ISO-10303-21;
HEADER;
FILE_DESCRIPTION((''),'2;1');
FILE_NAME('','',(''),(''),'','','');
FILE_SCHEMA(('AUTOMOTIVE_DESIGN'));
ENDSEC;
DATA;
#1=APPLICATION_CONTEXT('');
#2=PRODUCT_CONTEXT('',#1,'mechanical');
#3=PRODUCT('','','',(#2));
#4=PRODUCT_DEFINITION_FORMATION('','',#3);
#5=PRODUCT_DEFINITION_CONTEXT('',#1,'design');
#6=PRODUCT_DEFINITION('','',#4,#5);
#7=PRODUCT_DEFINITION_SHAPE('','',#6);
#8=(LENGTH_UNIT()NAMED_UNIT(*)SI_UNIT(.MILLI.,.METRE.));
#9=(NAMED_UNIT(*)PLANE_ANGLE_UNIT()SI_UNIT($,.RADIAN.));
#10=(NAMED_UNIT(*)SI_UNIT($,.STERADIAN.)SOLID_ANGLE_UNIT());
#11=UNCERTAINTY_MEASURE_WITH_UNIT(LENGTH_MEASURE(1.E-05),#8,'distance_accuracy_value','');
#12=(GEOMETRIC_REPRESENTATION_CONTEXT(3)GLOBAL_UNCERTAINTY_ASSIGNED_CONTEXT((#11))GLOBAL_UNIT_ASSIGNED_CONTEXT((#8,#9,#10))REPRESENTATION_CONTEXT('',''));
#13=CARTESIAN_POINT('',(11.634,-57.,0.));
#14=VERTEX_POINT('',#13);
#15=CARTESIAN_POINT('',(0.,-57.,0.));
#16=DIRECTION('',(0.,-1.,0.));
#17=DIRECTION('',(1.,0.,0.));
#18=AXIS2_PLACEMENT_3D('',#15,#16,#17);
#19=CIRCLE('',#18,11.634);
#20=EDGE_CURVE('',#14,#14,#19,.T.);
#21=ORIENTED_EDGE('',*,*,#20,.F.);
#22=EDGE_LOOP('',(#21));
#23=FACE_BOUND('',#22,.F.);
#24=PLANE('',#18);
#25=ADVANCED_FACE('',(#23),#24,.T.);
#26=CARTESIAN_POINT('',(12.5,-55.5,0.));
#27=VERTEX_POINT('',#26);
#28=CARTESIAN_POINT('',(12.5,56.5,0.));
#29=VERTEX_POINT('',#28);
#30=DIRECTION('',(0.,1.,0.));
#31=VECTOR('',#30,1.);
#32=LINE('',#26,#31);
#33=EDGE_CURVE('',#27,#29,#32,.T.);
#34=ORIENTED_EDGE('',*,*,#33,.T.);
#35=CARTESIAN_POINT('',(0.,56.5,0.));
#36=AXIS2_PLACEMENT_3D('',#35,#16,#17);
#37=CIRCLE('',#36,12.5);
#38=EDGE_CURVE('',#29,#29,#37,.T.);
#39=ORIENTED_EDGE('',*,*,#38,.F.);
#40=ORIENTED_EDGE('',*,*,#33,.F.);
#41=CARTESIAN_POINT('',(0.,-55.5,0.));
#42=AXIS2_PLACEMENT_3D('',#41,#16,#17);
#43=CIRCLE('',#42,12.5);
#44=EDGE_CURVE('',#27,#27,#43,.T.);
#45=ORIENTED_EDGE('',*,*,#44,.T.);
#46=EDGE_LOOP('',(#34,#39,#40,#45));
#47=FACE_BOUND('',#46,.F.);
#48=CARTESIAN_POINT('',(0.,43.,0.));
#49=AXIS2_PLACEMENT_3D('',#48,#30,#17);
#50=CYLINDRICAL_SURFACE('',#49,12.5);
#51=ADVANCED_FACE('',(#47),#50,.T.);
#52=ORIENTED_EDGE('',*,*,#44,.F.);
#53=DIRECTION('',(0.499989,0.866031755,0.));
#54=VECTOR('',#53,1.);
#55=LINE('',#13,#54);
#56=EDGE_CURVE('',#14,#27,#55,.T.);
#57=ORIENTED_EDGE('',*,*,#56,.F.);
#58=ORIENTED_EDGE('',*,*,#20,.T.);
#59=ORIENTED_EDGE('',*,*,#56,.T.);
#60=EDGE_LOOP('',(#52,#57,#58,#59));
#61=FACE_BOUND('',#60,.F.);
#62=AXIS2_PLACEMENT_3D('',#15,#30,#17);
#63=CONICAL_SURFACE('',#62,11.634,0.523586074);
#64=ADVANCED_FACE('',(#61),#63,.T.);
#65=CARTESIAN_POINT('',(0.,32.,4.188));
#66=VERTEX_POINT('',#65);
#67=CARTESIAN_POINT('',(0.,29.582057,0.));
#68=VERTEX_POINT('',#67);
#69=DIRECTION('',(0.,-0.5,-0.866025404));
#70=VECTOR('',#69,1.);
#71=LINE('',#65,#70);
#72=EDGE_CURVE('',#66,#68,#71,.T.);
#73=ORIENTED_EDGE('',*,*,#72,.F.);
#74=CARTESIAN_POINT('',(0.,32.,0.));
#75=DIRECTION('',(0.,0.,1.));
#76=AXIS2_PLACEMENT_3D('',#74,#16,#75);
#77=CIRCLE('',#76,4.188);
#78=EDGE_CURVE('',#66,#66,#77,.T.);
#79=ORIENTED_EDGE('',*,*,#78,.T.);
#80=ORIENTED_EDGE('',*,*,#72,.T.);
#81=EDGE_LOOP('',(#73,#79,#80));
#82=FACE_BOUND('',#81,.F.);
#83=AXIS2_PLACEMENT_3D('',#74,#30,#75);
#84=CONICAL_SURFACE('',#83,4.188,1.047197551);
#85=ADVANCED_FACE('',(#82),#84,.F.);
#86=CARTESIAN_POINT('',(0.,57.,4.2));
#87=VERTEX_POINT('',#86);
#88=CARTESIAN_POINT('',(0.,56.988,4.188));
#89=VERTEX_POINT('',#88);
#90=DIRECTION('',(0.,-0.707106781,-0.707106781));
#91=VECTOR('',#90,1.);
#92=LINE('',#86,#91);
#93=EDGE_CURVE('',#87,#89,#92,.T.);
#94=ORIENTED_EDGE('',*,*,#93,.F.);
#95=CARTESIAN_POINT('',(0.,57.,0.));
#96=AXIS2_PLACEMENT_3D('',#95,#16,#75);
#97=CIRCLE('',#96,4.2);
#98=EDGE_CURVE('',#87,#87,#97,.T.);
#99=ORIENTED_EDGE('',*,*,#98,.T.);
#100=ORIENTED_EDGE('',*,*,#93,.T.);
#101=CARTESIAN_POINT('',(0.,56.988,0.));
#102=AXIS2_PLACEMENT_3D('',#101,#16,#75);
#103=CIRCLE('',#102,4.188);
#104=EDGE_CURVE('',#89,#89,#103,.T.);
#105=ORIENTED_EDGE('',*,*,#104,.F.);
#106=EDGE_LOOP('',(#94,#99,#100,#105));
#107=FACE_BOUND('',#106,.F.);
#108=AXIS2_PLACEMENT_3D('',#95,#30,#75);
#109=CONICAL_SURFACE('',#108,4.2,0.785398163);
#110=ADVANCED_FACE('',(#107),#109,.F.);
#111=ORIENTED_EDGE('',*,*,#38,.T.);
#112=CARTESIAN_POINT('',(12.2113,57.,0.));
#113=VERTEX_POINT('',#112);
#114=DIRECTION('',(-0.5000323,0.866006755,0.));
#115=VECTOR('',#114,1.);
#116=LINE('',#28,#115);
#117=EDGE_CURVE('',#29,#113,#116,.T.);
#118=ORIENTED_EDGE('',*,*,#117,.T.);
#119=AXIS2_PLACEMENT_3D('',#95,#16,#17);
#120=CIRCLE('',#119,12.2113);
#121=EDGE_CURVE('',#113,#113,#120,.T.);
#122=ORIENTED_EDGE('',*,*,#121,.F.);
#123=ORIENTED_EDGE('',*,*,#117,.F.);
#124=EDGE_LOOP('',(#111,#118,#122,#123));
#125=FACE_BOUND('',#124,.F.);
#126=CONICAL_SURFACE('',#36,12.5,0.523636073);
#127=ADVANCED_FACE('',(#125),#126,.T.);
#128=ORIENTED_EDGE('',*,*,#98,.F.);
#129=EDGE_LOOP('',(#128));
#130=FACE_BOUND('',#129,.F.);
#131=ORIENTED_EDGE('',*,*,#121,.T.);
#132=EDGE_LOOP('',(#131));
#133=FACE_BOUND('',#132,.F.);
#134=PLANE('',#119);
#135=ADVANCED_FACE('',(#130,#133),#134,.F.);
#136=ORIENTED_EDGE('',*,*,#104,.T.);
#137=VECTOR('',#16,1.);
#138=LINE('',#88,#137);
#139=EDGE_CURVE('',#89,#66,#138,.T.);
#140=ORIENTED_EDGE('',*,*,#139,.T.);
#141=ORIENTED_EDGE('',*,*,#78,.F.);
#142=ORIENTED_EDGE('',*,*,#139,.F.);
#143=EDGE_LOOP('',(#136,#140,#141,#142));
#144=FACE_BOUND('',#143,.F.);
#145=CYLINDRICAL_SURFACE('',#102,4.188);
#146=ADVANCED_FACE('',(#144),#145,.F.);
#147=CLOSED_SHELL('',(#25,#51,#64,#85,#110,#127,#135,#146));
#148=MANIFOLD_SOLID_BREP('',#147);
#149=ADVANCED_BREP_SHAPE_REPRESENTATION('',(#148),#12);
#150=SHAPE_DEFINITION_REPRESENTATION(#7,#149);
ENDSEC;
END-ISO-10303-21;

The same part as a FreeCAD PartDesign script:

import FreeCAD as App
import Part
import Sketcher

V = App.Vector
Q = App.Units.Quantity


def add_polygon(sketch, points):
    """Adds a closed chain of lines whose ends are joined by coincident constraints."""
    first, n = sketch.GeometryCount, len(points)
    for a, b in zip(points, points[1:] + points[:1]):
        sketch.addGeometry(Part.LineSegment(App.Vector(*a, 0), App.Vector(*b, 0)), False)
    for i in range(n):
        sketch.addConstraint(Sketcher.Constraint("Coincident", first + i, 2, first + (i + 1) % n, 1))

doc = App.newDocument("Part")
body = doc.addObject("PartDesign::Body", "Body")

# Sketch on XY plane
sketch1 = doc.addObject("Sketcher::SketchObject", "Sketch")
body.addObject(sketch1)
sketch1.AttachmentSupport = (doc.XY_Plane, [""])
sketch1.MapMode = "FlatFace"
add_polygon(sketch1, [(12.2113, 57), (0, 57), (0, -57), (11.634, -57), (12.5, -55.5), (12.5, 56.5)])  # lines 0-5
sketch1.addConstraint([
    Sketcher.Constraint("Horizontal", 0),
    Sketcher.Constraint("Vertical", 1),
    Sketcher.Constraint("Horizontal", 2),
    Sketcher.Constraint("Vertical", 4),
    Sketcher.Constraint("Symmetric", 0, 2, 1, 2, -1, 1),
    Sketcher.Constraint("DistanceY", 1, 2, 1, 1, Q("114 mm")),
    Sketcher.Constraint("DistanceY", 2, 2, 3, 2, Q("1.5 mm")),
    Sketcher.Constraint("DistanceY", 4, 2, 0, 2, Q("0.5 mm")),
    Sketcher.Constraint("Angle", 3, Q("60.0007 deg")),
    Sketcher.Constraint("DistanceX", -1, 1, 3, 2, Q("12.5 mm")),
    Sketcher.Constraint("DistanceX", 0, 2, 0, 1, Q("12.2113 mm")),
])
revolution = doc.addObject("PartDesign::Revolution", "Revolution")
body.addObject(revolution)
revolution.Profile = sketch1
revolution.ReferenceAxis = (sketch1, ["V_Axis"])
revolution.Angle = 360

# Sketch on XZ plane
sketch2 = doc.addObject("Sketcher::SketchObject", "Sketch001")
body.addObject(sketch2)
sketch2.AttachmentSupport = (doc.XZ_Plane, [""])
sketch2.MapMode = "FlatFace"
sketch2.AttachmentOffset = App.Placement(V(0, 0, -57), App.Rotation())
sketch2.addGeometry(Part.Circle(V(0, 0, 0), V(0, 0, 1), 4.188), False)
sketch2.addConstraint([
    Sketcher.Constraint("Coincident", 0, 3, -1, 1),
    Sketcher.Constraint("Diameter", 0, Q("8.376 mm")),
])
doc.recompute()
hole = doc.addObject("PartDesign::Hole", "Hole")
body.addObject(hole)
hole.Profile = sketch2
hole.ThreadType = "None"
hole.Diameter = 8.376
hole.DepthType = "Dimension"
hole.Depth = 25
hole.DrillPoint = "Angled"
hole.DrillPointAngle = 120
hole.HoleCutType = "Countersink"
hole.HoleCutDiameter = 8.4
hole.HoleCutCountersinkAngle = 90
hole.Reversed = True

doc.recompute()
